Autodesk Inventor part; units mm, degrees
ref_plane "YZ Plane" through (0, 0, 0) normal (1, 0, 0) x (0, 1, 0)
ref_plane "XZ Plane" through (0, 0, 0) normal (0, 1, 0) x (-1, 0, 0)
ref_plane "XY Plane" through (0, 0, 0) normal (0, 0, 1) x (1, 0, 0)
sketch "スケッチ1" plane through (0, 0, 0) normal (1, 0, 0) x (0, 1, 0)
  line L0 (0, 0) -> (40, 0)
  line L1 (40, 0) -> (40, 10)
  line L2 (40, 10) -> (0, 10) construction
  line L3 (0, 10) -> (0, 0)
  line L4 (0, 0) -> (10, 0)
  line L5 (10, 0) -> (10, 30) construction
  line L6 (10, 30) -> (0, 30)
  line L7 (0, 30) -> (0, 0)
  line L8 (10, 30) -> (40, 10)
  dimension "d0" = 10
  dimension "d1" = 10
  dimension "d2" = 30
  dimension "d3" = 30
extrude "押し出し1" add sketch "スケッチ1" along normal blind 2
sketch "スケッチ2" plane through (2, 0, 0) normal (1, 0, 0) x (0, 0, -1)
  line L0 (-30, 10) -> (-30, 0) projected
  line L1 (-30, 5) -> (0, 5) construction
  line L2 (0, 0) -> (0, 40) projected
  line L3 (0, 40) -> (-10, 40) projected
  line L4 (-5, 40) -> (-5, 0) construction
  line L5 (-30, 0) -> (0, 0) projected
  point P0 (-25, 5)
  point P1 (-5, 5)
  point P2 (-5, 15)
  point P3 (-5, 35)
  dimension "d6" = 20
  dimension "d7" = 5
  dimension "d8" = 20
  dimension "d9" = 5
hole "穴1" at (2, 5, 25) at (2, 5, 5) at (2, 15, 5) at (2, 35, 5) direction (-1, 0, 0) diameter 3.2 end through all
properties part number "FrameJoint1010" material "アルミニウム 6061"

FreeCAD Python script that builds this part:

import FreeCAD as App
import Part
import Sketcher
Q = App.Units.Quantity


def add_polygon(sketch, points):
    """Adds a closed chain of lines whose ends are joined by coincident constraints."""
    first, n = sketch.GeometryCount, len(points)
    for a, b in zip(points, points[1:] + points[:1]):
        sketch.addGeometry(Part.LineSegment(App.Vector(*a, 0), App.Vector(*b, 0)), False)
    for i in range(n):
        sketch.addConstraint(Sketcher.Constraint("Coincident", first + i, 2, first + (i + 1) % n, 1))

doc = App.newDocument("Part")
body = doc.addObject("PartDesign::Body", "Body")

# Sketch on YZ plane
sketch1 = body.newObject("Sketcher::SketchObject", "Sketch")
sketch1.AttachmentSupport = (doc.getObject("YZ_Plane"), [""])
sketch1.MapMode = "FlatFace"
add_polygon(sketch1, [(0, 30), (0, 0), (40, 0), (40, 10), (10, 30)])  # lines 0-4
sketch1.addConstraint(Sketcher.Constraint("Vertical", 0))
sketch1.addConstraint(Sketcher.Constraint("Horizontal", 1))
sketch1.addConstraint(Sketcher.Constraint("Vertical", 2))
sketch1.addConstraint(Sketcher.Constraint("Horizontal", 4))
sketch1.addConstraint(Sketcher.Constraint("Coincident", 0, 2, -1, 1))
sketch1.addConstraint(Sketcher.Constraint("Equal", 4, 2))
sketch1.addConstraint(Sketcher.Constraint("DistanceX", 4, 2, 4, 1, Q("10 mm")))
sketch1.addConstraint(Sketcher.Constraint("DistanceY", 0, 2, 0, 1, Q("30 mm")))
sketch1.addConstraint(Sketcher.Constraint("DistanceX", 3, 2, 2, 2, Q("30 mm")))
pad1 = body.newObject("PartDesign::Pad", "Pad")
pad1.Profile = sketch1
pad1.Length = 2

# Sketch on YZ plane
sketch2 = body.newObject("Sketcher::SketchObject", "Sketch001")
sketch2.AttachmentSupport = (doc.getObject("YZ_Plane"), [""])
sketch2.MapMode = "FlatFace"
sketch2.AttachmentOffset = App.Placement(App.Vector(0, 0, 2), App.Rotation())
sketch2.addGeometry(Part.Circle(App.Vector(5, 25, 0), App.Vector(0, 0, 1), 1.6), False)
sketch2.addGeometry(Part.Circle(App.Vector(5, 5, 0), App.Vector(0, 0, 1), 1.6), False)
sketch2.addGeometry(Part.Circle(App.Vector(15, 5, 0), App.Vector(0, 0, 1), 1.6), False)
sketch2.addGeometry(Part.Circle(App.Vector(35, 5, 0), App.Vector(0, 0, 1), 1.6), False)
sketch2.addConstraint(Sketcher.Constraint("Equal", 0, 1))
sketch2.addConstraint(Sketcher.Constraint("Equal", 1, 2))
sketch2.addConstraint(Sketcher.Constraint("Equal", 2, 3))
sketch2.addConstraint(Sketcher.Constraint("Horizontal", 1, 3, 2, 3))
sketch2.addConstraint(Sketcher.Constraint("Horizontal", 2, 3, 3, 3))
sketch2.addConstraint(Sketcher.Constraint("Vertical", 0, 3, 1, 3))
sketch2.addConstraint(Sketcher.Constraint("Diameter", 0, Q("3.2 mm")))
sketch2.addConstraint(Sketcher.Constraint("DistanceX", -1, 1, 0, 3, Q("5 mm")))
sketch2.addConstraint(Sketcher.Constraint("DistanceY", -1, 1, 0, 3, Q("25 mm")))
sketch2.addConstraint(Sketcher.Constraint("DistanceY", -1, 1, 1, 3, Q("5 mm")))
sketch2.addConstraint(Sketcher.Constraint("DistanceX", -1, 1, 2, 3, Q("15 mm")))
sketch2.addConstraint(Sketcher.Constraint("DistanceX", -1, 1, 3, 3, Q("35 mm")))
doc.recompute()
hole = body.newObject("PartDesign::Hole", "Hole")
hole.Profile = sketch2
hole.ThreadType = "None"
hole.Diameter = 3.2
hole.DepthType = "ThroughAll"

doc.recompute()
